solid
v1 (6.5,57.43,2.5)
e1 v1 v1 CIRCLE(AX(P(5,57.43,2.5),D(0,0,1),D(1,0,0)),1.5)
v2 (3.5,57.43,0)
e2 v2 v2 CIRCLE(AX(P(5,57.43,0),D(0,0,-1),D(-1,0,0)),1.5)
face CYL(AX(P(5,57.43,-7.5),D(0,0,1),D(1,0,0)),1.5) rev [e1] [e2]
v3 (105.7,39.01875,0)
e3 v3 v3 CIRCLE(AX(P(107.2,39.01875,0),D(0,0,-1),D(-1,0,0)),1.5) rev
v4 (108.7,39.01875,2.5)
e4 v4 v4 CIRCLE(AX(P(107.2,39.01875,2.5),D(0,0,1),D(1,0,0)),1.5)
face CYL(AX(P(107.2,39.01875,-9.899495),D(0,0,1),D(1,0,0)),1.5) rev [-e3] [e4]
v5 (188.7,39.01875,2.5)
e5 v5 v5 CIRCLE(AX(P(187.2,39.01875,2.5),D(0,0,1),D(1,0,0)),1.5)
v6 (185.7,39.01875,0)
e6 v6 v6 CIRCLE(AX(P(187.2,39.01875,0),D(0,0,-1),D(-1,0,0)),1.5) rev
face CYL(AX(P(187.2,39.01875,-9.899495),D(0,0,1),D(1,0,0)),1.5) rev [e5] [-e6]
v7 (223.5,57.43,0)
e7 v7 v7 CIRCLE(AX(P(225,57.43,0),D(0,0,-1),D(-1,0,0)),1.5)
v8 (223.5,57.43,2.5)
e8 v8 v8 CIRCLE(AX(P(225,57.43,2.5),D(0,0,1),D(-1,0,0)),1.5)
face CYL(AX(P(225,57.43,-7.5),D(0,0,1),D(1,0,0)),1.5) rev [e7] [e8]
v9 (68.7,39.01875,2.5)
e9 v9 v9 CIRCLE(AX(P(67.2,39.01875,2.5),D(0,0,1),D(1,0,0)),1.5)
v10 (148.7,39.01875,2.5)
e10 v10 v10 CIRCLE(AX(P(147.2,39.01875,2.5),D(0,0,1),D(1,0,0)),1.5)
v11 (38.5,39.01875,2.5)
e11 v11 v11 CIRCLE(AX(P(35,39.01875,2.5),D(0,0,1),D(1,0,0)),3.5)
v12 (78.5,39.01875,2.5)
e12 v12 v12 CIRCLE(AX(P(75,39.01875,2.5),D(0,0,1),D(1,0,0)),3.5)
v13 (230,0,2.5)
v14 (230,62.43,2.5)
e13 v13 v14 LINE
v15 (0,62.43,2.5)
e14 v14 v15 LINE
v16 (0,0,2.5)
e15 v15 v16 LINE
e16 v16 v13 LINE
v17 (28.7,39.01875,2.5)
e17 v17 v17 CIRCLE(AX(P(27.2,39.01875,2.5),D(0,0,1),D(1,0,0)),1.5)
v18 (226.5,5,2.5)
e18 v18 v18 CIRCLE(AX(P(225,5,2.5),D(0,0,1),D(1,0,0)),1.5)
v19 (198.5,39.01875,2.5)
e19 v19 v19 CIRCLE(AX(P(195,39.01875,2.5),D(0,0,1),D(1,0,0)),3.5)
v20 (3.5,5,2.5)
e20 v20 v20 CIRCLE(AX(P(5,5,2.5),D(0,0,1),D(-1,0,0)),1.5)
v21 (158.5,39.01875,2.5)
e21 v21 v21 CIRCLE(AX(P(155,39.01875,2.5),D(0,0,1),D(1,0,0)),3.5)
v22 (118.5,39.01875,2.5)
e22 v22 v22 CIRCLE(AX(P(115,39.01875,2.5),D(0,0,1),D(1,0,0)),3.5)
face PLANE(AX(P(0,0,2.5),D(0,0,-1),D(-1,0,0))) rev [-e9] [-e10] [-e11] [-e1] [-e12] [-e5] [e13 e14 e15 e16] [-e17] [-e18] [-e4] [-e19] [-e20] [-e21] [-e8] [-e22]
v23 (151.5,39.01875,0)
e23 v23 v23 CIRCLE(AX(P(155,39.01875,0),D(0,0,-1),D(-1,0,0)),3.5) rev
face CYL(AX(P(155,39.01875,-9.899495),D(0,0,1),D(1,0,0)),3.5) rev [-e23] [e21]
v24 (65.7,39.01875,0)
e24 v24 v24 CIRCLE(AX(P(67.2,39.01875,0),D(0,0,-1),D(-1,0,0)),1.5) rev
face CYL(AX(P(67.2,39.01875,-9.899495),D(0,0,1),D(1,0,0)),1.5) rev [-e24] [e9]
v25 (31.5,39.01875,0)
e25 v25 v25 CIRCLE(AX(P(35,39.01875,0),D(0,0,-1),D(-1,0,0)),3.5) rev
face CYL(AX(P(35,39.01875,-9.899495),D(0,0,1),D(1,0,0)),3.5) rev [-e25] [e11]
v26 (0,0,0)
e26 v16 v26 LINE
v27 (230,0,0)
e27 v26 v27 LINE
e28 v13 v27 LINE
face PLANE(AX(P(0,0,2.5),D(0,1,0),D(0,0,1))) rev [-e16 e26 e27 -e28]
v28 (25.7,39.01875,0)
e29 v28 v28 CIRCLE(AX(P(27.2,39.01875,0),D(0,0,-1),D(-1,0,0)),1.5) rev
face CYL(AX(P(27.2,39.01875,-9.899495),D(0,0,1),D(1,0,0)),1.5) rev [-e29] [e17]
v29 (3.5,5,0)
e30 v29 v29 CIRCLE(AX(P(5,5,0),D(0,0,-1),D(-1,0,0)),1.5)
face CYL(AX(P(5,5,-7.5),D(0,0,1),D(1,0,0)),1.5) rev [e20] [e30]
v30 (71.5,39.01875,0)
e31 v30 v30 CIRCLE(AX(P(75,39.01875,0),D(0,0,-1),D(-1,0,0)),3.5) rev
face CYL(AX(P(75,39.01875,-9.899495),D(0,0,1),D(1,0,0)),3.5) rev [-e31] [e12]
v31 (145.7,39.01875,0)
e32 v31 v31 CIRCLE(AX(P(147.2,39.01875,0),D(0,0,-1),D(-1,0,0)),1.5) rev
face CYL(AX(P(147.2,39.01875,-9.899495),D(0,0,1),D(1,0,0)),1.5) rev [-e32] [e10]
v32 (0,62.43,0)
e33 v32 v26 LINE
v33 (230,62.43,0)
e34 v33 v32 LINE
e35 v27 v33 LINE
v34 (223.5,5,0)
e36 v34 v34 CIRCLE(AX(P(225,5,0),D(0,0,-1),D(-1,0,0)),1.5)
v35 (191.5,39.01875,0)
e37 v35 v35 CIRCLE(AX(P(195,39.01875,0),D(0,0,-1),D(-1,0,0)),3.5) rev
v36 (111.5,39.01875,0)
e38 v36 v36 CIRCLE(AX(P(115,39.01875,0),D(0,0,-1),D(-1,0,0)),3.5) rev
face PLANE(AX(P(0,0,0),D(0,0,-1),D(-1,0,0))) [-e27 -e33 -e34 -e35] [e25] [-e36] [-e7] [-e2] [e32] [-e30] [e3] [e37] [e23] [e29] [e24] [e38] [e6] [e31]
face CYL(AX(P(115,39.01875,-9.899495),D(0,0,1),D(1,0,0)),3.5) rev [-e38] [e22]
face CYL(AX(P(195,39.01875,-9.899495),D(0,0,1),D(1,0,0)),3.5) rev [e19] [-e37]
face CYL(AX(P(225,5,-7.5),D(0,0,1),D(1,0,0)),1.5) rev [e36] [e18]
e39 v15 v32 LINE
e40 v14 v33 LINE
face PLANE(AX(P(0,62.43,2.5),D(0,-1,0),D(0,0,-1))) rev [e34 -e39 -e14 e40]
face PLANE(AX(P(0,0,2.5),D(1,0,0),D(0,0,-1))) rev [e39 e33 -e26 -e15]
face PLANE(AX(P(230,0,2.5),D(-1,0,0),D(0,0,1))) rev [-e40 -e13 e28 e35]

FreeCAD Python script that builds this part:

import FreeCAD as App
import Part
import Sketcher

doc = App.newDocument("Part")
body = doc.addObject("PartDesign::Body", "Body")

# Sketch on XY plane
sketch1 = body.newObject("Sketcher::SketchObject", "Sketch")
sketch1.AttachmentSupport = (doc.getObject("XY_Plane"), [""])
sketch1.MapMode = "FlatFace"
sketch1.addGeometry([
    Part.LineSegment(App.Vector(0, 62.43, 0), App.Vector(0, 0, 0)),
    Part.LineSegment(App.Vector(0, 0, 0), App.Vector(230, 0, 0)),
    Part.LineSegment(App.Vector(230, 0, 0), App.Vector(230, 62.43, 0)),
    Part.LineSegment(App.Vector(230, 62.43, 0), App.Vector(0, 62.43, 0)),
], False)
sketch1.addConstraint([
    Sketcher.Constraint("Coincident", 0, 2, 1, 1),
    Sketcher.Constraint("Coincident", 1, 2, 2, 1),
    Sketcher.Constraint("Coincident", 2, 2, 3, 1),
    Sketcher.Constraint("Coincident", 3, 2, 0, 1),
    Sketcher.Constraint("Vertical", 0),
    Sketcher.Constraint("Horizontal", 1),
    Sketcher.Constraint("Vertical", 2),
    Sketcher.Constraint("Horizontal", 3),
    Sketcher.Constraint("Coincident", 0, 2, -1, 1),
    Sketcher.Constraint("DistanceX", 1, 1, 1, 2, 230.0),
    Sketcher.Constraint("DistanceY", 0, 2, 0, 1, 62.43),
])
pad1 = body.newObject("PartDesign::Pad", "Pad")
pad1.Profile = sketch1
pad1.Length = 2.5

# Sketch on XY plane
sketch2 = body.newObject("Sketcher::SketchObject", "Sketch001")
sketch2.AttachmentSupport = (doc.getObject("XY_Plane"), [""])
sketch2.MapMode = "FlatFace"
sketch2.AttachmentOffset = App.Placement(App.Vector(0, 0, 2.5), App.Rotation())
sketch2.addGeometry([
    Part.Circle(App.Vector(5, 57.43, 0), App.Vector(0, 0, 1), 1.5),
    Part.Circle(App.Vector(5, 5, 0), App.Vector(0, 0, 1), 1.5),
    Part.Circle(App.Vector(225, 5, 0), App.Vector(0, 0, 1), 1.5),
    Part.Circle(App.Vector(225, 57.43, 0), App.Vector(0, 0, 1), 1.5),
], False)
sketch2.addConstraint([
    Sketcher.Constraint("Equal", 0, 1),
    Sketcher.Constraint("Equal", 1, 2),
    Sketcher.Constraint("Equal", 2, 3),
    Sketcher.Constraint("Horizontal", 1, 3, 2, 3),
    Sketcher.Constraint("Horizontal", 0, 3, 3, 3),
    Sketcher.Constraint("Vertical", 0, 3, 1, 3),
    Sketcher.Constraint("Vertical", 2, 3, 3, 3),
    Sketcher.Constraint("Diameter", 0, 3.0),
    Sketcher.Constraint("DistanceX", -1, 1, 0, 3, 5.0),
    Sketcher.Constraint("DistanceY", -1, 1, 1, 3, 5.0),
    Sketcher.Constraint("DistanceX", -1, 1, 2, 3, 225.0),
    Sketcher.Constraint("DistanceY", -1, 1, 0, 3, 57.43),
])
pocket1 = body.newObject("PartDesign::Pocket", "Pocket")
pocket1.Profile = sketch2
pocket1.Length = 10

# Sketch on XY plane
sketch3 = body.newObject("Sketcher::SketchObject", "Sketch002")
sketch3.AttachmentSupport = (doc.getObject("XY_Plane"), [""])
sketch3.MapMode = "FlatFace"
sketch3.AttachmentOffset = App.Placement(App.Vector(0, 0, 2.5), App.Rotation())
sketch3.addGeometry([
    Part.Circle(App.Vector(115, 39.01875, 0), App.Vector(0, 0, 1), 3.5),  # 0
    Part.Circle(App.Vector(107.2, 39.01875, 0), App.Vector(0, 0, 1), 1.5),  # 1
    Part.Circle(App.Vector(155, 39.01875, 0), App.Vector(0, 0, 1), 3.5),  # 2
    Part.Circle(App.Vector(147.2, 39.01875, 0), App.Vector(0, 0, 1), 1.5),  # 3
    Part.Circle(App.Vector(195, 39.01875, 0), App.Vector(0, 0, 1), 3.5),  # 4
    Part.Circle(App.Vector(187.2, 39.01875, 0), App.Vector(0, 0, 1), 1.5),  # 5
    Part.Circle(App.Vector(67.2, 39.01875, 0), App.Vector(0, 0, 1), 1.5),  # 6
    Part.Circle(App.Vector(75, 39.01875, 0), App.Vector(0, 0, 1), 3.5),  # 7
    Part.Circle(App.Vector(27.2, 39.01875, 0), App.Vector(0, 0, 1), 1.5),  # 8
    Part.Circle(App.Vector(35, 39.01875, 0), App.Vector(0, 0, 1), 3.5),  # 9
], False)
sketch3.addConstraint([
    Sketcher.Constraint("Equal", 0, 2),
    Sketcher.Constraint("Equal", 1, 3),
    Sketcher.Constraint("Equal", 2, 4),
    Sketcher.Constraint("Equal", 3, 5),
    Sketcher.Constraint("Equal", 5, 6),
    Sketcher.Constraint("Equal", 4, 7),
    Sketcher.Constraint("Equal", 6, 8),
    Sketcher.Constraint("Equal", 7, 9),
    Sketcher.Constraint("Horizontal", 0, 3, 1, 3),
    Sketcher.Constraint("Horizontal", 1, 3, 2, 3),
    Sketcher.Constraint("Horizontal", 2, 3, 3, 3),
    Sketcher.Constraint("Horizontal", 3, 3, 4, 3),
    Sketcher.Constraint("Horizontal", 4, 3, 5, 3),
    Sketcher.Constraint("Horizontal", 5, 3, 6, 3),
    Sketcher.Constraint("Horizontal", 6, 3, 7, 3),
    Sketcher.Constraint("Horizontal", 7, 3, 8, 3),
    Sketcher.Constraint("Horizontal", 8, 3, 9, 3),
    Sketcher.Constraint("Diameter", 0, 7.0),
    Sketcher.Constraint("Diameter", 1, 3.0),
    Sketcher.Constraint("DistanceX", -1, 1, 0, 3, 115.0),
    Sketcher.Constraint("DistanceX", -1, 1, 2, 3, 155.0),
    Sketcher.Constraint("DistanceX", -1, 1, 4, 3, 195.0),
    Sketcher.Constraint("DistanceX", -1, 1, 7, 3, 75.0),
    Sketcher.Constraint("DistanceX", -1, 1, 9, 3, 35.0),
    Sketcher.Constraint("DistanceX", 1, 3, 3, 3, 40.0),
    Sketcher.Constraint("DistanceX", 3, 3, 5, 3, 40.0),
    Sketcher.Constraint("DistanceX", 6, 3, 1, 3, 40.0),
    Sketcher.Constraint("DistanceX", 8, 3, 6, 3, 40.0),
    Sketcher.Constraint("DistanceX", -1, 1, 1, 3, 107.2),
    Sketcher.Constraint("DistanceY", -1, 1, 0, 3, 39.01875),
])
pocket2 = body.newObject("PartDesign::Pocket", "Pocket001")
pocket2.Profile = sketch3
pocket2.Length = 2.5

doc.recompute()
